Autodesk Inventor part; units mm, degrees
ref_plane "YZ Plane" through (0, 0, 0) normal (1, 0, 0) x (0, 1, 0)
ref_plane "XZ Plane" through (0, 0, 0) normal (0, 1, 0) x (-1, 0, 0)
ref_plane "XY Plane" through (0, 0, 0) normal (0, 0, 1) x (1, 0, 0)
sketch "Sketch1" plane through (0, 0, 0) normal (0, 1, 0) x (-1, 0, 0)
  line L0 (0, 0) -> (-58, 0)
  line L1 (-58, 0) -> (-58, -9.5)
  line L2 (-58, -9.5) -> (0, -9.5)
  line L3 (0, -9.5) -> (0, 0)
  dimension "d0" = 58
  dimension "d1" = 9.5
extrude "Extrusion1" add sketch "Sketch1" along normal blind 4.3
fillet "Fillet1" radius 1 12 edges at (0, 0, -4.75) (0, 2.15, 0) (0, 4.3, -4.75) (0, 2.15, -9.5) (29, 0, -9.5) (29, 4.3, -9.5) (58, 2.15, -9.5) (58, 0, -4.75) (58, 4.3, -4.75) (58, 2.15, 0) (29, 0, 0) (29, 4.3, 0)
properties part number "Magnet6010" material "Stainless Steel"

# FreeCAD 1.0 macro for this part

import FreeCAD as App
import Part
import Sketcher
from FreeCAD import Vector

doc = App.newDocument("Part")
params = doc.addObject("Spreadsheet::Sheet", "Params")
for row, (alias, value) in enumerate([
    ("sketch1_width", "58 mm"),
    ("sketch1_height", "9.5 mm"),
    ("pad1_length", "4.3 mm"),
    ("fillet_radius", "1 mm"),
], start=1):
    params.set(f"A{row}", alias)
    params.set(f"B{row}", "=" + value)
    params.setAlias(f"B{row}", alias)

body = doc.addObject("PartDesign::Body", "Body")

sketch1 = doc.addObject("Sketcher::SketchObject", "Sketch")
body.addObject(sketch1)
sketch1.AttachmentSupport = (doc.XZ_Plane, [""])
sketch1.MapMode = "FlatFace"
sketch1.addGeometry(Part.LineSegment(Vector(0, -10, 0), Vector(0, 0, 0)), False)
sketch1.addGeometry(Part.LineSegment(Vector(0, 0, 0), Vector(58, 0, 0)), False)
sketch1.addGeometry(Part.LineSegment(Vector(58, 0, 0), Vector(58, -10, 0)), False)
sketch1.addGeometry(Part.LineSegment(Vector(58, -10, 0), Vector(0, -10, 0)), False)
sketch1.addConstraint(Sketcher.Constraint("Coincident", 0, 2, 1, 1))
sketch1.addConstraint(Sketcher.Constraint("Coincident", 1, 2, 2, 1))
sketch1.addConstraint(Sketcher.Constraint("Coincident", 2, 2, 3, 1))
sketch1.addConstraint(Sketcher.Constraint("Coincident", 3, 2, 0, 1))
sketch1.addConstraint(Sketcher.Constraint("Vertical", 0))
sketch1.addConstraint(Sketcher.Constraint("Horizontal", 1))
sketch1.addConstraint(Sketcher.Constraint("Vertical", 2))
sketch1.addConstraint(Sketcher.Constraint("Horizontal", 3))
sketch1.addConstraint(Sketcher.Constraint("Coincident", 0, 2, -1, 1))
sketch1.addConstraint(Sketcher.Constraint("DistanceX", 1, 1, 1, 2, 58.0))
sketch1.addConstraint(Sketcher.Constraint("DistanceY", 0, 1, 0, 2, 9.5))
sketch1.setExpression("Constraints[9]", "Params.sketch1_width")
sketch1.setExpression("Constraints[10]", "Params.sketch1_height")
pad1 = doc.addObject("PartDesign::Pad", "Pad")
body.addObject(pad1)
pad1.Profile = sketch1
pad1.setExpression("Length", "Params.pad1_length")
pad1.Reversed = True
doc.recompute()

fillet = doc.addObject("PartDesign::Fillet", "Fillet")
body.addObject(fillet)
fillet.Base = (pad1, ["Edge1"])
fillet.UseAllEdges = True
fillet.setExpression("Radius", "Params.fillet_radius")

doc.recompute()
